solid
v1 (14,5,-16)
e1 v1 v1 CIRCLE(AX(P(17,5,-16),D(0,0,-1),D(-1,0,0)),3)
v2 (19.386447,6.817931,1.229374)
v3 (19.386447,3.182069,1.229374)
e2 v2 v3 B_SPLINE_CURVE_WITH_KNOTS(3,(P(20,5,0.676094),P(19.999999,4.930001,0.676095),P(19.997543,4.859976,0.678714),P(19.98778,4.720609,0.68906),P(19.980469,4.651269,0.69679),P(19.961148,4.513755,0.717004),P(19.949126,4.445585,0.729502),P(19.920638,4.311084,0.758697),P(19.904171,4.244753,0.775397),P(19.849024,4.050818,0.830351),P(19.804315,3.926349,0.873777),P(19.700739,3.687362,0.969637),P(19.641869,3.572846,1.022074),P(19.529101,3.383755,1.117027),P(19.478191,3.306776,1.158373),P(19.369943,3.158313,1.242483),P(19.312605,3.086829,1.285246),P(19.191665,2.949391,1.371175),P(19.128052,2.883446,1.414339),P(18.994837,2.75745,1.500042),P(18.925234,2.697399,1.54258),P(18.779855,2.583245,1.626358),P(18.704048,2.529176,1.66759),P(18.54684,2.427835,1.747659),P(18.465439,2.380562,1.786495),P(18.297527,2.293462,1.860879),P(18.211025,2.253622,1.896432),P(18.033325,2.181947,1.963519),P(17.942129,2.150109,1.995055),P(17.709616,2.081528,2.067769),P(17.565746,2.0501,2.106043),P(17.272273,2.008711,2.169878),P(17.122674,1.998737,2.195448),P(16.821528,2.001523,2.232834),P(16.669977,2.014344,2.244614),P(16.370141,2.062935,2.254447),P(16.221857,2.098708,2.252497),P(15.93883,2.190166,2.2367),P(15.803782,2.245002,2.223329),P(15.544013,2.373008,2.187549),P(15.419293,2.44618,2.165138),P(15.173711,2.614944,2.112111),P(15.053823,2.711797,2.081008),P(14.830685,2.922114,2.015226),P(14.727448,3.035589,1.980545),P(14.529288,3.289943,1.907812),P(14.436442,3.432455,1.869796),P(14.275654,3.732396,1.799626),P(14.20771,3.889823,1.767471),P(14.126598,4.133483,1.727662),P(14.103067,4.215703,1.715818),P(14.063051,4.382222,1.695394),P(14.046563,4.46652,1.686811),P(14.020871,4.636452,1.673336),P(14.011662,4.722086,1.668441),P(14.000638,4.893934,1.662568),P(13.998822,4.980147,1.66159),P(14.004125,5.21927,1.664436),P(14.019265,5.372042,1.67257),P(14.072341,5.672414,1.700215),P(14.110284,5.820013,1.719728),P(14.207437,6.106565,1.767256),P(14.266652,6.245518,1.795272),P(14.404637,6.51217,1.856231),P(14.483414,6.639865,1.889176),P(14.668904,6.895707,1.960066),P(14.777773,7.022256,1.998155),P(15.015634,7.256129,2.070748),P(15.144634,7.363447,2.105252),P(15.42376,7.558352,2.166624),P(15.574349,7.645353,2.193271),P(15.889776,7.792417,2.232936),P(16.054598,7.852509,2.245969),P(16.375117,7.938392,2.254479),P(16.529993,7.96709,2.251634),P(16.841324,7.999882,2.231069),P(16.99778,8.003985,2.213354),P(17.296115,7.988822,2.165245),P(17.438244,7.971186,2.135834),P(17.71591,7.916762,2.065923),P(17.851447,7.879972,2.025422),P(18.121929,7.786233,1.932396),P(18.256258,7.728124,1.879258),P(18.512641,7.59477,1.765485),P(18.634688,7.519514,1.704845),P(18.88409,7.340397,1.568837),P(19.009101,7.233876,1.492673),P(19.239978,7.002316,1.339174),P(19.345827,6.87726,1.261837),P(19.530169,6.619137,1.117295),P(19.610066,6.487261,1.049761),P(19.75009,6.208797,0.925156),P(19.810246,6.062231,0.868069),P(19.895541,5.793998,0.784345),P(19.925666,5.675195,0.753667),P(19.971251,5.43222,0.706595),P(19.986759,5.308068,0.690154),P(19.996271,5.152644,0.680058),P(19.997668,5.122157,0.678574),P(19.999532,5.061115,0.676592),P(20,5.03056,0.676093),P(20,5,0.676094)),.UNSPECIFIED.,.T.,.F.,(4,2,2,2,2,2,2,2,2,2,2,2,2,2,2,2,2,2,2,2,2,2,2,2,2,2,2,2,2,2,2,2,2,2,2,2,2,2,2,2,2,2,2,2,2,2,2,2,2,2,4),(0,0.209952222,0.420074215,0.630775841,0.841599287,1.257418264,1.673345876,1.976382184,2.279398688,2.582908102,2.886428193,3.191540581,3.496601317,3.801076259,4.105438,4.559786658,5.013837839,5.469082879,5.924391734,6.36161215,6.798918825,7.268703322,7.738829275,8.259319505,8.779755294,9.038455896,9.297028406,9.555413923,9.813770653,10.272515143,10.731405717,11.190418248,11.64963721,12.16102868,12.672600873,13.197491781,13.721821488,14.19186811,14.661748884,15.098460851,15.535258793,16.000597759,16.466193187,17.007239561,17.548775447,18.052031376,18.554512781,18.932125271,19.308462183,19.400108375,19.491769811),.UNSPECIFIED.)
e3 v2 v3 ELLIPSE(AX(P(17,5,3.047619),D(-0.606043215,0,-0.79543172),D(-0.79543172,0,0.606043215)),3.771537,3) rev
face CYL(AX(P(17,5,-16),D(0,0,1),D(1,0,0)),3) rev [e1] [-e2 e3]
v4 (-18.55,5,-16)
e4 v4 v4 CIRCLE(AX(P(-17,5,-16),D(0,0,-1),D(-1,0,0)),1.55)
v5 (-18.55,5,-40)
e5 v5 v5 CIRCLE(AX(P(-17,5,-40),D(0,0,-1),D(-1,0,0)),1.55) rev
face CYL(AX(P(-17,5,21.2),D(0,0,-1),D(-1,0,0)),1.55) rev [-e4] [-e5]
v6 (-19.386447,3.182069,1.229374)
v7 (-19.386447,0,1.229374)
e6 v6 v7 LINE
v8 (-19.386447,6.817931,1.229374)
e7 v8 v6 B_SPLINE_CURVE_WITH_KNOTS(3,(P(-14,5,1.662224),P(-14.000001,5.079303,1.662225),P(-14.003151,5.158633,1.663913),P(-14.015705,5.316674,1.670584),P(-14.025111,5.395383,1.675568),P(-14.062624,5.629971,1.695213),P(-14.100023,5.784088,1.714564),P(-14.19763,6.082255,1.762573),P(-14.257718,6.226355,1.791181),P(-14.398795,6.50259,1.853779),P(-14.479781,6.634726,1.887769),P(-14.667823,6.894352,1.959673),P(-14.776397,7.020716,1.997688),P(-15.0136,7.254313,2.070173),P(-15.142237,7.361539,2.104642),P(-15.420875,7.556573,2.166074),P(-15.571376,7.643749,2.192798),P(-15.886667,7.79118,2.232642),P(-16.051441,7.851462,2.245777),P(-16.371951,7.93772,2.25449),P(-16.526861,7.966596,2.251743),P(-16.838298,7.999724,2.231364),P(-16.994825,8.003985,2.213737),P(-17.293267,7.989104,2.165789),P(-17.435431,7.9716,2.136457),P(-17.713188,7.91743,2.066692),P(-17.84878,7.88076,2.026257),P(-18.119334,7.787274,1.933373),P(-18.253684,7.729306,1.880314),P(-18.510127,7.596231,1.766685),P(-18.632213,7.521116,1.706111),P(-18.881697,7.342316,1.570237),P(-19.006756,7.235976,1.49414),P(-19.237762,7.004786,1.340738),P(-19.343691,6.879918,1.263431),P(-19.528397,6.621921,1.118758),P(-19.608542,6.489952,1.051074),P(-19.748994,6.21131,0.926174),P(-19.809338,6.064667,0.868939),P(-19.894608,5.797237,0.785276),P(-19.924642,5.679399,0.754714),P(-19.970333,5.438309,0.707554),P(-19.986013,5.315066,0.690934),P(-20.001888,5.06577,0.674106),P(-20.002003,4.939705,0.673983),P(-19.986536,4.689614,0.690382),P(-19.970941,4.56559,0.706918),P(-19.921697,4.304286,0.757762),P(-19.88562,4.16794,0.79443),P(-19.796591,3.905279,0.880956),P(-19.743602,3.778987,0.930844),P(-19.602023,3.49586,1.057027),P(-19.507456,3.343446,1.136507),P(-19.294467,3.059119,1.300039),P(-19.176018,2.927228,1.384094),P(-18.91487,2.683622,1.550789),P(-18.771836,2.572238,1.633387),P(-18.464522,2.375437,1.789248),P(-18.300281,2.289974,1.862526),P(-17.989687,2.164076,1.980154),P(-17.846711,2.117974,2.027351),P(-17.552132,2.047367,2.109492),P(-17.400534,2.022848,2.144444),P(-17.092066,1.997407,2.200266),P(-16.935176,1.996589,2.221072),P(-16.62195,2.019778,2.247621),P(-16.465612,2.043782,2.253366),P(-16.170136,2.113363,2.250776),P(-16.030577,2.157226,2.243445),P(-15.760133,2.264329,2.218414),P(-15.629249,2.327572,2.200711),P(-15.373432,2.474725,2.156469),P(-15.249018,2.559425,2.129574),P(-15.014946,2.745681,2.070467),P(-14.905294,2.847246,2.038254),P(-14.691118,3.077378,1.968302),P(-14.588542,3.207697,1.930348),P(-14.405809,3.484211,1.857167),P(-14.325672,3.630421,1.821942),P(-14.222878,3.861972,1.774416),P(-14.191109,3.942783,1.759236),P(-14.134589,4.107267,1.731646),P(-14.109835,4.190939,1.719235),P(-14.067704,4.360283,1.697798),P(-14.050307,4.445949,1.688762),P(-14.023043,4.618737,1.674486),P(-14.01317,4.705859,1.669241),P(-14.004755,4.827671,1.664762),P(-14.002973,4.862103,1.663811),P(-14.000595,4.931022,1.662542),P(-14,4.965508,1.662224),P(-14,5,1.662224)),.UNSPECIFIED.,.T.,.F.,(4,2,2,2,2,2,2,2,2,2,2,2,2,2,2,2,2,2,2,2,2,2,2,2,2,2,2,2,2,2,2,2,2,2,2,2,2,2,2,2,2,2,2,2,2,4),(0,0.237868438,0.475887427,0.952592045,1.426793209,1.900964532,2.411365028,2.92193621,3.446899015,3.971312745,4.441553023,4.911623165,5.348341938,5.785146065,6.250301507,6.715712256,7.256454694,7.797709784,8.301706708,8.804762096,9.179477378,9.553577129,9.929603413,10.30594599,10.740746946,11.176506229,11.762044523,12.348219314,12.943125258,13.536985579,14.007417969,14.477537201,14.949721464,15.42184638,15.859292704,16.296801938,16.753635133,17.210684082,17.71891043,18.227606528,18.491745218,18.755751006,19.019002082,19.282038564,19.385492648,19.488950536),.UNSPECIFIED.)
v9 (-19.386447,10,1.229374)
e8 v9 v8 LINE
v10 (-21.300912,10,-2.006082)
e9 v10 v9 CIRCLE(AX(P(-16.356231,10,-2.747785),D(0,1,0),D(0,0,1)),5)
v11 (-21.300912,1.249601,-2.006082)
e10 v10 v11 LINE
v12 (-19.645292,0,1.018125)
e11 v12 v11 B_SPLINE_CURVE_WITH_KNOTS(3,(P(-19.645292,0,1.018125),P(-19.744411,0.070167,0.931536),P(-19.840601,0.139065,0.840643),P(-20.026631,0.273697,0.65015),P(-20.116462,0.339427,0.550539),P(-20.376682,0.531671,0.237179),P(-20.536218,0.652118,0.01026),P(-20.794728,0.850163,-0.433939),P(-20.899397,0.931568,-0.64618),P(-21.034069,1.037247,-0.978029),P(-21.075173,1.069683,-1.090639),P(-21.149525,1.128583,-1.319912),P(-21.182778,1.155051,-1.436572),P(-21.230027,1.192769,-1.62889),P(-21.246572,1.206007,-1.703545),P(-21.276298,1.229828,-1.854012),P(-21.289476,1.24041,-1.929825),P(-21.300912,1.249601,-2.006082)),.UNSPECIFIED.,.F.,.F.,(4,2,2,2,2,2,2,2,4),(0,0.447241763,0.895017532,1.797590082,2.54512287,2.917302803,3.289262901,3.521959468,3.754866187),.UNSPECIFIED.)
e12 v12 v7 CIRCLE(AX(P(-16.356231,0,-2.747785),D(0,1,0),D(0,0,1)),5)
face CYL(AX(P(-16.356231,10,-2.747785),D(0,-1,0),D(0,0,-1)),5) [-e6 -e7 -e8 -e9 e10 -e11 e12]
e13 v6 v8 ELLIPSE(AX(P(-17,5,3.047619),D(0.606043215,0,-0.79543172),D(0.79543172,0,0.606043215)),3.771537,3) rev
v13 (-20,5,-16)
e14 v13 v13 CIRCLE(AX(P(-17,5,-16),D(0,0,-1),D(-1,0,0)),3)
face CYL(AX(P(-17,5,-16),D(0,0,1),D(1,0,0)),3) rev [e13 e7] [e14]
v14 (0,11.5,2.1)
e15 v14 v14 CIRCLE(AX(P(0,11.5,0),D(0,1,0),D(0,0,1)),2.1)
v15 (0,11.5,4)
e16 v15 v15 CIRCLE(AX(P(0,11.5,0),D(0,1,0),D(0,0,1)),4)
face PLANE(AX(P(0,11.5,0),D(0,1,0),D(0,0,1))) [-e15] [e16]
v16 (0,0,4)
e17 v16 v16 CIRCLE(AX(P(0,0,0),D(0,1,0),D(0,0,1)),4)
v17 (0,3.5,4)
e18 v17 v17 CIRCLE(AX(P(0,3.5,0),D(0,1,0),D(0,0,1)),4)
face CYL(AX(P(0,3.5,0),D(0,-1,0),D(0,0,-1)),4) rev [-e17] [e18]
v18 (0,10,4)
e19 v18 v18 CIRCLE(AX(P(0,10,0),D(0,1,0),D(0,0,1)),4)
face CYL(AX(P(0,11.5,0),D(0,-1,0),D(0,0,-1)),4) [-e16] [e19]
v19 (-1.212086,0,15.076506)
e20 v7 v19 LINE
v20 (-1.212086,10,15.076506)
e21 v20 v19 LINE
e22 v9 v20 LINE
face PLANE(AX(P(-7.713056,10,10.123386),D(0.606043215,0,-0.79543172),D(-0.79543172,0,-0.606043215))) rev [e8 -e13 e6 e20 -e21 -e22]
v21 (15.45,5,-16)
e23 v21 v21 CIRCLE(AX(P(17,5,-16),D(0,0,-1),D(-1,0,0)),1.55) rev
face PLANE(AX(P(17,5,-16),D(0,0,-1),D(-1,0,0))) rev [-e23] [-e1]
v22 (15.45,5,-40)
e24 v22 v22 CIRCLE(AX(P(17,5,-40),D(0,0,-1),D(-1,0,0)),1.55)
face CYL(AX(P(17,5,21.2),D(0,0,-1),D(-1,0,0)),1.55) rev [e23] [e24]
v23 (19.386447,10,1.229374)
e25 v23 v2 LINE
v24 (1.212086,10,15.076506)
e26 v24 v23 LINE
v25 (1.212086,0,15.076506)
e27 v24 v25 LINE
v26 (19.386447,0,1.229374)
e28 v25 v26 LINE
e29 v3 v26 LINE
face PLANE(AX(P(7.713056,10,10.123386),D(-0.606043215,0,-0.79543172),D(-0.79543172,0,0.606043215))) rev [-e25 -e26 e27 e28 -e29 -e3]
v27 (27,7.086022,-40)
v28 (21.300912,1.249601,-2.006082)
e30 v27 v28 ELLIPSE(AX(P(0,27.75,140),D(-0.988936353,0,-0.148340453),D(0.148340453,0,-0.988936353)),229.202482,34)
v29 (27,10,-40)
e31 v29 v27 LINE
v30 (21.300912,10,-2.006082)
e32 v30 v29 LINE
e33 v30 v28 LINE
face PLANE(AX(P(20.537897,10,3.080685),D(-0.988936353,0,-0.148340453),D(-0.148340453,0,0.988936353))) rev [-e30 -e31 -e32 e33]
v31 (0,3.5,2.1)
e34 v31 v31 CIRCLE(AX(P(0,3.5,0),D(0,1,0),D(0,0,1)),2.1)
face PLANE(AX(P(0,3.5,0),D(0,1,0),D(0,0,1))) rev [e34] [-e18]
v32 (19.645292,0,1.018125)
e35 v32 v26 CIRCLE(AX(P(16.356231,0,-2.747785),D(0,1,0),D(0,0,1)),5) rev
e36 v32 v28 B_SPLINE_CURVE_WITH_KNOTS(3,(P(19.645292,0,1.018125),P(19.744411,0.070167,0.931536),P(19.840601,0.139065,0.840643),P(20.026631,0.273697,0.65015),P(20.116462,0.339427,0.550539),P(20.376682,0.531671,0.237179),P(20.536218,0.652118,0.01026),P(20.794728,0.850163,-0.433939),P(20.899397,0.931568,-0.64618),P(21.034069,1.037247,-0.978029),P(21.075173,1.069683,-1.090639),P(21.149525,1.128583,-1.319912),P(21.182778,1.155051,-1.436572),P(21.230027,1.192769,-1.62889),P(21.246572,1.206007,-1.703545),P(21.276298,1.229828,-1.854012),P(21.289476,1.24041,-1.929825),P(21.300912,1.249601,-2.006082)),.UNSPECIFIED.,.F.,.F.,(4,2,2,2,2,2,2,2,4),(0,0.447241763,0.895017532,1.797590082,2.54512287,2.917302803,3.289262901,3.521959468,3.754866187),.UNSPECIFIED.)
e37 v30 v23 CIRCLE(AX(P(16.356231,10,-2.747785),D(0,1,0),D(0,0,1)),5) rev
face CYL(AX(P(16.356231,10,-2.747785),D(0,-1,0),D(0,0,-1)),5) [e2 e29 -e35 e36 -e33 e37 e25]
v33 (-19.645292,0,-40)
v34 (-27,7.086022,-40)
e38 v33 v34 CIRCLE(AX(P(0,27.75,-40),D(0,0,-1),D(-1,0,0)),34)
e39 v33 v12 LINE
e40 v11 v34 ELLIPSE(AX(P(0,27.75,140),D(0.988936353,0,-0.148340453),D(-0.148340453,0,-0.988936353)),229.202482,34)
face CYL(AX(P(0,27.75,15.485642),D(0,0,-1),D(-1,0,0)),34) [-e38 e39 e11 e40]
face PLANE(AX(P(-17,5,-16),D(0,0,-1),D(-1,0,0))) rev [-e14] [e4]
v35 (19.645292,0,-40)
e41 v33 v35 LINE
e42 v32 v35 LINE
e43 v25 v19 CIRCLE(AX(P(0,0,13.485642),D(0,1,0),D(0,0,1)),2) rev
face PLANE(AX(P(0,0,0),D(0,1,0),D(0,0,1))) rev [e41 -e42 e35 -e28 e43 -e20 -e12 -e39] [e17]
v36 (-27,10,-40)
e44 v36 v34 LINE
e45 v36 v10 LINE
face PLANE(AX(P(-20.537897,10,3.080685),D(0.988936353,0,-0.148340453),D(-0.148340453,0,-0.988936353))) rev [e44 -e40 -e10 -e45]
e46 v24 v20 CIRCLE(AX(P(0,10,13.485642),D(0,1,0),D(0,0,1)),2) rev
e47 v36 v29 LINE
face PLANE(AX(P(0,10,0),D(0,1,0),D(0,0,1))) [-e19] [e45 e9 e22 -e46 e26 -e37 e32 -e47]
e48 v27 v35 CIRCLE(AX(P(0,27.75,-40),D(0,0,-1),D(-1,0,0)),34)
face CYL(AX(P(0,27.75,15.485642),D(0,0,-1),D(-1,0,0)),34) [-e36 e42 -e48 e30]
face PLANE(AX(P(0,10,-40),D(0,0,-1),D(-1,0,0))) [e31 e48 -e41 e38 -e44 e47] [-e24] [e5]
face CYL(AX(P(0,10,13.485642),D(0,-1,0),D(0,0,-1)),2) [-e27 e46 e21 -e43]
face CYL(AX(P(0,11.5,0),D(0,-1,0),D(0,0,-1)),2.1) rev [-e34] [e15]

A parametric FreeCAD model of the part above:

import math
import FreeCAD as App
import Part
import Sketcher

V = App.Vector
Q = App.Units.Quantity

doc = App.newDocument("Part")
body = doc.addObject("PartDesign::Body", "Body")

sketch1 = doc.addObject("Sketcher::SketchObject", "Sketch")
body.addObject(sketch1)
sketch1.AttachmentSupport = (doc.XZ_Plane, [""])
sketch1.MapMode = "FlatFace"
sketch1.addGeometry(Part.ArcOfCircle(Part.Circle(V(0, 13.5, 0), V(0, 0, 1), 2), math.radians(53), math.radians(127)), False)
sketch1.addGeometry(Part.LineSegment(V(1.2, 15.1, 0), V(19.4, 1.2, 0)), False)
sketch1.addGeometry(Part.ArcOfCircle(Part.Circle(V(16.4, -2.7, 0), V(0, 0, 1), 5), math.radians(9), math.radians(53)), False)
sketch1.addGeometry(Part.LineSegment(V(21.3, -2, 0), V(27, -40, 0)), False)
sketch1.addGeometry(Part.LineSegment(V(27, -40, 0), V(-27, -40, 0)), False)
sketch1.addGeometry(Part.LineSegment(V(-27, -40, 0), V(-21.3, -2, 0)), False)
sketch1.addGeometry(Part.ArcOfCircle(Part.Circle(V(-16.4, -2.7, 0), V(0, 0, 1), 5), math.radians(127), math.radians(171)), False)
sketch1.addGeometry(Part.LineSegment(V(-19.4, 1.2, 0), V(-1.2, 15.1, 0)), False)
sketch1.addGeometry(Part.Circle(V(0, 0, 0), V(0, 0, 1), 4), False)
sketch1.addConstraint(Sketcher.Constraint("Tangent", 0, 1, 1, 1))
sketch1.addConstraint(Sketcher.Constraint("Tangent", 1, 2, 2, 2))
sketch1.addConstraint(Sketcher.Constraint("Tangent", 2, 1, 3, 1))
sketch1.addConstraint(Sketcher.Constraint("Coincident", 3, 2, 4, 1))
sketch1.addConstraint(Sketcher.Constraint("Coincident", 4, 2, 5, 1))
sketch1.addConstraint(Sketcher.Constraint("Tangent", 5, 2, 6, 2))
sketch1.addConstraint(Sketcher.Constraint("Tangent", 6, 1, 7, 1))
sketch1.addConstraint(Sketcher.Constraint("Tangent", 7, 2, 0, 2))
sketch1.addConstraint(Sketcher.Constraint("Horizontal", 4))
sketch1.addConstraint(Sketcher.Constraint("Coincident", 8, 3, -1, 1))
sketch1.addConstraint(Sketcher.Constraint("Equal", 2, 6))
sketch1.addConstraint(Sketcher.Constraint("Symmetric", 2, 3, 6, 3, -2))
sketch1.addConstraint(Sketcher.Constraint("PointOnObject", 0, 3, -2))
sketch1.addConstraint(Sketcher.Constraint("Horizontal", 2, 1, 5, 2))
sketch1.addConstraint(Sketcher.Constraint("Diameter", 8, Q("8 mm")))
sketch1.addConstraint(Sketcher.Constraint("Radius", 0, Q("2 mm")))
sketch1.addConstraint(Sketcher.Constraint("Radius", 2, Q("5 mm")))
sketch1.addConstraint(Sketcher.Constraint("DistanceX", 4, 2, 4, 1, Q("54 mm")))
sketch1.addConstraint(Sketcher.Constraint("DistanceY", 3, 2, -1, 1, Q("40 mm")))
sketch1.addConstraint(Sketcher.Constraint("DistanceX", 5, 2, 0, 1, Q("22.512999 mm")))
sketch1.addConstraint(Sketcher.Constraint("Distance", 3, Q("38.418972 mm")))
sketch1.addConstraint(Sketcher.Constraint("DistanceX", -1, 1, 2, 3, Q("16.356231 mm")))
pad1 = doc.addObject("PartDesign::Pad", "Pad")
body.addObject(pad1)
pad1.Profile = sketch1
pad1.Length = 10
pad1.Reversed = True

sketch2 = doc.addObject("Sketcher::SketchObject", "Sketch001")
body.addObject(sketch2)
sketch2.AttachmentSupport = (doc.XZ_Plane, [""])
sketch2.MapMode = "FlatFace"
sketch2.addGeometry(Part.Circle(V(0, 0, 0), V(0, 0, 1), 4), False)
sketch2.addGeometry(Part.Circle(V(0, 0, 0), V(0, 0, 1), 2.1), False)
sketch2.addConstraint(Sketcher.Constraint("Coincident", 0, 3, -1, 1))
sketch2.addConstraint(Sketcher.Constraint("Coincident", 1, 3, -1, 1))
sketch2.addConstraint(Sketcher.Constraint("Diameter", 0, Q("8 mm")))
sketch2.addConstraint(Sketcher.Constraint("Diameter", 1, Q("4.2 mm")))
pad2 = doc.addObject("PartDesign::Pad", "Pad001")
body.addObject(pad2)
pad2.Profile = sketch2
pad2.Length = 11.5
pad2.Reversed = True

sketch3 = doc.addObject("Sketcher::SketchObject", "Sketch002")
body.addObject(sketch3)
sketch3.AttachmentSupport = (doc.XZ_Plane, [""])
sketch3.MapMode = "FlatFace"
sketch3.addGeometry(Part.Circle(V(0, 0, 0), V(0, 0, 1), 4), False)
sketch3.addGeometry(Part.Circle(V(0, 0, 0), V(0, 0, 1), 2.1), False)
sketch3.addConstraint(Sketcher.Constraint("Coincident", 0, 3, -1, 1))
sketch3.addConstraint(Sketcher.Constraint("Coincident", 1, 3, -1, 1))
sketch3.addConstraint(Sketcher.Constraint("Diameter", 0, Q("8 mm")))
sketch3.addConstraint(Sketcher.Constraint("Diameter", 1, Q("4.2 mm")))
pocket1 = doc.addObject("PartDesign::Pocket", "Pocket")
body.addObject(pocket1)
pocket1.Profile = sketch3
pocket1.Length = 3.5

sketch4 = doc.addObject("Sketcher::SketchObject", "Sketch003")
body.addObject(sketch4)
sketch4.AttachmentSupport = (doc.XY_Plane, [""])
sketch4.MapMode = "FlatFace"
sketch4.AttachmentOffset = App.Placement(V(0, 0, -40), App.Rotation())
sketch4.addGeometry(Part.Circle(V(17, 5, 0), V(0, 0, 1), 1.6), False)
sketch4.addGeometry(Part.Circle(V(-17, 5, 0), V(0, 0, 1), 1.6), False)
sketch4.addConstraint(Sketcher.Constraint("Equal", 0, 1))
sketch4.addConstraint(Sketcher.Constraint("Symmetric", 0, 3, 1, 3, -2))
sketch4.addConstraint(Sketcher.Constraint("Diameter", 0, Q("3.1 mm")))
sketch4.addConstraint(Sketcher.Constraint("DistanceX", -1, 1, 0, 3, Q("17 mm")))
sketch4.addConstraint(Sketcher.Constraint("DistanceY", -1, 1, 0, 3, Q("5 mm")))
pocket2 = doc.addObject("PartDesign::Pocket", "Pocket001")
body.addObject(pocket2)
pocket2.Profile = sketch4
pocket2.Length = 61.2
pocket2.Reversed = True

sketch5 = doc.addObject("Sketcher::SketchObject", "Sketch004")
body.addObject(sketch5)
sketch5.AttachmentSupport = (doc.XY_Plane, [""])
sketch5.MapMode = "FlatFace"
sketch5.AttachmentOffset = App.Placement(V(0, 0, -40), App.Rotation())
sketch5.addGeometry(Part.Circle(V(0, 28, 0), V(0, 0, 1), 51), False)
sketch5.addGeometry(Part.Circle(V(0, 28, 0), V(0, 0, 1), 34), False)
sketch5.addConstraint(Sketcher.Constraint("Coincident", 1, 3, 0, 3))
sketch5.addConstraint(Sketcher.Constraint("PointOnObject", 0, 3, -2))
sketch5.addConstraint(Sketcher.Constraint("Diameter", 1, Q("68 mm")))
sketch5.addConstraint(Sketcher.Constraint("Diameter", 0, Q("102.407062 mm")))
sketch5.addConstraint(Sketcher.Constraint("DistanceY", -1, 1, 0, 3, Q("27.75 mm")))
pocket3 = doc.addObject("PartDesign::Pocket", "Pocket002")
body.addObject(pocket3)
pocket3.Profile = sketch5
pocket3.Type = "ThroughAll"
pocket3.Reversed = True

sketch6 = doc.addObject("Sketcher::SketchObject", "Sketch005")
body.addObject(sketch6)
sketch6.AttachmentSupport = (doc.XY_Plane, [""])
sketch6.MapMode = "FlatFace"
sketch6.AttachmentOffset = App.Placement(V(0, 0, 20), App.Rotation())
sketch6.addGeometry(Part.Circle(V(-17, 5, 0), V(0, 0, 1), 3), False)
sketch6.addGeometry(Part.Circle(V(17, 5, 0), V(0, 0, 1), 3), False)
sketch6.addConstraint(Sketcher.Constraint("Equal", 0, 1))
sketch6.addConstraint(Sketcher.Constraint("Symmetric", 0, 3, 1, 3, -2))
sketch6.addConstraint(Sketcher.Constraint("Diameter", 0, Q("6 mm")))
sketch6.addConstraint(Sketcher.Constraint("DistanceX", 0, 3, -1, 1, Q("17 mm")))
sketch6.addConstraint(Sketcher.Constraint("DistanceY", -1, 1, 0, 3, Q("5 mm")))
pocket4 = doc.addObject("PartDesign::Pocket", "Pocket003")
body.addObject(pocket4)
pocket4.Profile = sketch6
pocket4.Length = 36

doc.recompute()
